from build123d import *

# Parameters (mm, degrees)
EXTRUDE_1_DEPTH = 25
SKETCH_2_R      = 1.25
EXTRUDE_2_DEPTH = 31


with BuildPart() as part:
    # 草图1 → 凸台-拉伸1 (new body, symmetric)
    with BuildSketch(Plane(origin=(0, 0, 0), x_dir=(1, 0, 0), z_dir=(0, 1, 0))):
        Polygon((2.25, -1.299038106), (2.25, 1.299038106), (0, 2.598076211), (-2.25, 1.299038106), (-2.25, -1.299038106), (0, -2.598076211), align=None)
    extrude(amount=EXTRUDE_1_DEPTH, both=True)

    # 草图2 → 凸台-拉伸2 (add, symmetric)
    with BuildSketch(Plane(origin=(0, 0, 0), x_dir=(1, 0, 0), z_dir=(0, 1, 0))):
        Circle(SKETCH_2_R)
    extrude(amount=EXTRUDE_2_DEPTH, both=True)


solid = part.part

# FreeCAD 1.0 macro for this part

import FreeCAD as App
import Part
import Sketcher

V = App.Vector
Q = App.Units.Quantity


def add_polygon(sketch, points):
    """Adds a closed chain of lines whose ends are joined by coincident constraints."""
    first, n = sketch.GeometryCount, len(points)
    for a, b in zip(points, points[1:] + points[:1]):
        sketch.addGeometry(Part.LineSegment(App.Vector(*a, 0), App.Vector(*b, 0)), False)
    for i in range(n):
        sketch.addConstraint(Sketcher.Constraint("Coincident", first + i, 2, first + (i + 1) % n, 1))

doc = App.newDocument("Part")
params = doc.addObject("Spreadsheet::Sheet", "Params")
for row, (alias, value) in enumerate([
    ("pad1_length", "50 mm"),
    ("sketch2_diameter", "2.5 mm"),
    ("pad2_length", "62 mm"),
], start=1):
    params.set(f"A{row}", alias)
    params.set(f"B{row}", "=" + value)
    params.setAlias(f"B{row}", alias)

body = doc.addObject("PartDesign::Body", "Body")

# Sketch on XZ plane
sketch1 = doc.addObject("Sketcher::SketchObject", "Sketch")
body.addObject(sketch1)
sketch1.AttachmentSupport = (doc.XZ_Plane, [""])
sketch1.MapMode = "FlatFace"
add_polygon(sketch1, [(2.2, 1.3), (2.2, -1.3), (0, -2.6), (-2.2, -1.3), (-2.2, 1.3), (0, 2.6)])  # lines 0-5
sketch1.addConstraint([
    Sketcher.Constraint("Vertical", 0),
    Sketcher.Constraint("Vertical", 3),
    Sketcher.Constraint("Symmetric", 0, 2, 3, 2, -1, 1),
    Sketcher.Constraint("Symmetric", 1, 2, 4, 2, -1, 1),
    Sketcher.Constraint("PointOnObject", 1, 2, -2),
    Sketcher.Constraint("Parallel", 2, 5),
    Sketcher.Constraint("Horizontal", 0, 2, 2, 2),
    Sketcher.Constraint("Angle", 1, Q("-150 deg")),
    Sketcher.Constraint("DistanceX", 2, 2, 0, 2, 4.5),
    Sketcher.Constraint("DistanceY", 0, 2, 0, 1, 2.598076),
])
pad1 = doc.addObject("PartDesign::Pad", "Pad")
body.addObject(pad1)
pad1.Profile = sketch1
pad1.setExpression("Length", "Params.pad1_length")
pad1.Midplane = True

# Sketch on XZ plane
sketch2 = doc.addObject("Sketcher::SketchObject", "Sketch001")
body.addObject(sketch2)
sketch2.AttachmentSupport = (doc.XZ_Plane, [""])
sketch2.MapMode = "FlatFace"
sketch2.addGeometry(Part.Circle(V(0, 0, 0), V(0, 0, 1), 1.2), False)
sketch2.addConstraint([
    Sketcher.Constraint("Coincident", 0, 3, -1, 1),
    Sketcher.Constraint("Diameter", 0, 2.5),
])
sketch2.setExpression("Constraints[1]", "Params.sketch2_diameter")
pad2 = doc.addObject("PartDesign::Pad", "Pad001")
body.addObject(pad2)
pad2.Profile = sketch2
pad2.setExpression("Length", "Params.pad2_length")
pad2.Midplane = True

doc.recompute()
